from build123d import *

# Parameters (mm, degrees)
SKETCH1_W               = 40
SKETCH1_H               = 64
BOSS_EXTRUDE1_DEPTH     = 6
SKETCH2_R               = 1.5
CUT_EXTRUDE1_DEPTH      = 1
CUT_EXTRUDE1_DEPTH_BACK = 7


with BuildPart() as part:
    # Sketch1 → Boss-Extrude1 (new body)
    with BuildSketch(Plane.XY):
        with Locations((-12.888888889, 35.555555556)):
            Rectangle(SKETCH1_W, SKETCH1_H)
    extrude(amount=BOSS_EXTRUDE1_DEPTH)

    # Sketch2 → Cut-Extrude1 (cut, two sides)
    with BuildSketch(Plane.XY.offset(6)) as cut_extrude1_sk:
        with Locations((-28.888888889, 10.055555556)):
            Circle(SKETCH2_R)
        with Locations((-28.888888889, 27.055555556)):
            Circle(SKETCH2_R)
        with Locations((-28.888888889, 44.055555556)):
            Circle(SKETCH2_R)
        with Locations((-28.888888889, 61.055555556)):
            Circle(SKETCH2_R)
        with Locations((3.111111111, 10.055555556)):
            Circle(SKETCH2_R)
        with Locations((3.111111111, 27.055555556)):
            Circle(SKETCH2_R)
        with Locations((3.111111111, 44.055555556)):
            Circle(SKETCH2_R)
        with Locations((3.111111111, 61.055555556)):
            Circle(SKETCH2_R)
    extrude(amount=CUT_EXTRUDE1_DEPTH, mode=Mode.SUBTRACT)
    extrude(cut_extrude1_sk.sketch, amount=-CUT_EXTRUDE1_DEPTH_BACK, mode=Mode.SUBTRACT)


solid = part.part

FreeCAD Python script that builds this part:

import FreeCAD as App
import Part
import Sketcher


def add_polygon(sketch, points):
    """Adds a closed chain of lines whose ends are joined by coincident constraints."""
    first, n = sketch.GeometryCount, len(points)
    for a, b in zip(points, points[1:] + points[:1]):
        sketch.addGeometry(Part.LineSegment(App.Vector(*a, 0), App.Vector(*b, 0)), False)
    for i in range(n):
        sketch.addConstraint(Sketcher.Constraint("Coincident", first + i, 2, first + (i + 1) % n, 1))

doc = App.newDocument("Part")
body = doc.addObject("PartDesign::Body", "Body")

# Sketch on XY plane
sketch1 = body.newObject("Sketcher::SketchObject", "Sketch")
sketch1.AttachmentSupport = (doc.getObject("XY_Plane"), [""])
sketch1.MapMode = "FlatFace"
add_polygon(sketch1, [(-33, 68), (-33, 4), (7, 4), (7, 68)])  # lines 0-3
sketch1.addConstraint([
    Sketcher.Constraint("Vertical", 0),
    Sketcher.Constraint("Horizontal", 1),
    Sketcher.Constraint("Vertical", 2),
    Sketcher.Constraint("Horizontal", 3),
    Sketcher.Constraint("DistanceX", 1, 1, 1, 2, 40.0),
    Sketcher.Constraint("DistanceY", 0, 2, 0, 1, 64.0),
    Sketcher.Constraint("DistanceX", 0, 2, -1, 1, 32.888889),
    Sketcher.Constraint("DistanceY", -1, 1, 0, 2, 3.555556),
])
pad1 = body.newObject("PartDesign::Pad", "Pad")
pad1.Profile = sketch1
pad1.Length = 6

# Sketch on XY plane
sketch2 = body.newObject("Sketcher::SketchObject", "Sketch001")
sketch2.AttachmentSupport = (doc.getObject("XY_Plane"), [""])
sketch2.MapMode = "FlatFace"
sketch2.AttachmentOffset = App.Placement(App.Vector(0, 0, 6), App.Rotation())
sketch2.addGeometry([
    Part.Circle(App.Vector(-28.9, 10.1, 0), App.Vector(0, 0, 1), 1.5),  # 0
    Part.Circle(App.Vector(-28.9, 27.1, 0), App.Vector(0, 0, 1), 1.5),  # 1
    Part.Circle(App.Vector(-28.9, 44.1, 0), App.Vector(0, 0, 1), 1.5),  # 2
    Part.Circle(App.Vector(-28.9, 61.1, 0), App.Vector(0, 0, 1), 1.5),  # 3
    Part.Circle(App.Vector(3.1, 10.1, 0), App.Vector(0, 0, 1), 1.5),  # 4
    Part.Circle(App.Vector(3.1, 27.1, 0), App.Vector(0, 0, 1), 1.5),  # 5
    Part.Circle(App.Vector(3.1, 44.1, 0), App.Vector(0, 0, 1), 1.5),  # 6
    Part.Circle(App.Vector(3.1, 61.1, 0), App.Vector(0, 0, 1), 1.5),  # 7
], False)
sketch2.addConstraint([
    Sketcher.Constraint("Equal", 0, 1),
    Sketcher.Constraint("Equal", 1, 2),
    Sketcher.Constraint("Equal", 2, 3),
    Sketcher.Constraint("Equal", 3, 4),
    Sketcher.Constraint("Equal", 4, 5),
    Sketcher.Constraint("Equal", 5, 6),
    Sketcher.Constraint("Equal", 6, 7),
    Sketcher.Constraint("Horizontal", 0, 3, 4, 3),
    Sketcher.Constraint("Horizontal", 1, 3, 5, 3),
    Sketcher.Constraint("Horizontal", 2, 3, 6, 3),
    Sketcher.Constraint("Horizontal", 3, 3, 7, 3),
    Sketcher.Constraint("Vertical", 0, 3, 1, 3),
    Sketcher.Constraint("Vertical", 1, 3, 2, 3),
    Sketcher.Constraint("Vertical", 2, 3, 3, 3),
    Sketcher.Constraint("Vertical", 4, 3, 5, 3),
    Sketcher.Constraint("Vertical", 5, 3, 6, 3),
    Sketcher.Constraint("Vertical", 6, 3, 7, 3),
    Sketcher.Constraint("Diameter", 0, 3.0),
    Sketcher.Constraint("DistanceY", 0, 3, 1, 3, 17.0),
    Sketcher.Constraint("DistanceY", 1, 3, 2, 3, 17.0),
    Sketcher.Constraint("DistanceY", 2, 3, 3, 3, 17.0),
    Sketcher.Constraint("DistanceX", 0, 3, 4, 3, 32.0),
    Sketcher.Constraint("DistanceX", 0, 3, -1, 1, 28.888889),
    Sketcher.Constraint("DistanceY", -1, 1, 0, 3, 10.055556),
])
pocket1 = body.newObject("PartDesign::Pocket", "Pocket")
pocket1.Profile = sketch2
pocket1.Type = "ThroughAll"
pocket1.Midplane = True

doc.recompute()
